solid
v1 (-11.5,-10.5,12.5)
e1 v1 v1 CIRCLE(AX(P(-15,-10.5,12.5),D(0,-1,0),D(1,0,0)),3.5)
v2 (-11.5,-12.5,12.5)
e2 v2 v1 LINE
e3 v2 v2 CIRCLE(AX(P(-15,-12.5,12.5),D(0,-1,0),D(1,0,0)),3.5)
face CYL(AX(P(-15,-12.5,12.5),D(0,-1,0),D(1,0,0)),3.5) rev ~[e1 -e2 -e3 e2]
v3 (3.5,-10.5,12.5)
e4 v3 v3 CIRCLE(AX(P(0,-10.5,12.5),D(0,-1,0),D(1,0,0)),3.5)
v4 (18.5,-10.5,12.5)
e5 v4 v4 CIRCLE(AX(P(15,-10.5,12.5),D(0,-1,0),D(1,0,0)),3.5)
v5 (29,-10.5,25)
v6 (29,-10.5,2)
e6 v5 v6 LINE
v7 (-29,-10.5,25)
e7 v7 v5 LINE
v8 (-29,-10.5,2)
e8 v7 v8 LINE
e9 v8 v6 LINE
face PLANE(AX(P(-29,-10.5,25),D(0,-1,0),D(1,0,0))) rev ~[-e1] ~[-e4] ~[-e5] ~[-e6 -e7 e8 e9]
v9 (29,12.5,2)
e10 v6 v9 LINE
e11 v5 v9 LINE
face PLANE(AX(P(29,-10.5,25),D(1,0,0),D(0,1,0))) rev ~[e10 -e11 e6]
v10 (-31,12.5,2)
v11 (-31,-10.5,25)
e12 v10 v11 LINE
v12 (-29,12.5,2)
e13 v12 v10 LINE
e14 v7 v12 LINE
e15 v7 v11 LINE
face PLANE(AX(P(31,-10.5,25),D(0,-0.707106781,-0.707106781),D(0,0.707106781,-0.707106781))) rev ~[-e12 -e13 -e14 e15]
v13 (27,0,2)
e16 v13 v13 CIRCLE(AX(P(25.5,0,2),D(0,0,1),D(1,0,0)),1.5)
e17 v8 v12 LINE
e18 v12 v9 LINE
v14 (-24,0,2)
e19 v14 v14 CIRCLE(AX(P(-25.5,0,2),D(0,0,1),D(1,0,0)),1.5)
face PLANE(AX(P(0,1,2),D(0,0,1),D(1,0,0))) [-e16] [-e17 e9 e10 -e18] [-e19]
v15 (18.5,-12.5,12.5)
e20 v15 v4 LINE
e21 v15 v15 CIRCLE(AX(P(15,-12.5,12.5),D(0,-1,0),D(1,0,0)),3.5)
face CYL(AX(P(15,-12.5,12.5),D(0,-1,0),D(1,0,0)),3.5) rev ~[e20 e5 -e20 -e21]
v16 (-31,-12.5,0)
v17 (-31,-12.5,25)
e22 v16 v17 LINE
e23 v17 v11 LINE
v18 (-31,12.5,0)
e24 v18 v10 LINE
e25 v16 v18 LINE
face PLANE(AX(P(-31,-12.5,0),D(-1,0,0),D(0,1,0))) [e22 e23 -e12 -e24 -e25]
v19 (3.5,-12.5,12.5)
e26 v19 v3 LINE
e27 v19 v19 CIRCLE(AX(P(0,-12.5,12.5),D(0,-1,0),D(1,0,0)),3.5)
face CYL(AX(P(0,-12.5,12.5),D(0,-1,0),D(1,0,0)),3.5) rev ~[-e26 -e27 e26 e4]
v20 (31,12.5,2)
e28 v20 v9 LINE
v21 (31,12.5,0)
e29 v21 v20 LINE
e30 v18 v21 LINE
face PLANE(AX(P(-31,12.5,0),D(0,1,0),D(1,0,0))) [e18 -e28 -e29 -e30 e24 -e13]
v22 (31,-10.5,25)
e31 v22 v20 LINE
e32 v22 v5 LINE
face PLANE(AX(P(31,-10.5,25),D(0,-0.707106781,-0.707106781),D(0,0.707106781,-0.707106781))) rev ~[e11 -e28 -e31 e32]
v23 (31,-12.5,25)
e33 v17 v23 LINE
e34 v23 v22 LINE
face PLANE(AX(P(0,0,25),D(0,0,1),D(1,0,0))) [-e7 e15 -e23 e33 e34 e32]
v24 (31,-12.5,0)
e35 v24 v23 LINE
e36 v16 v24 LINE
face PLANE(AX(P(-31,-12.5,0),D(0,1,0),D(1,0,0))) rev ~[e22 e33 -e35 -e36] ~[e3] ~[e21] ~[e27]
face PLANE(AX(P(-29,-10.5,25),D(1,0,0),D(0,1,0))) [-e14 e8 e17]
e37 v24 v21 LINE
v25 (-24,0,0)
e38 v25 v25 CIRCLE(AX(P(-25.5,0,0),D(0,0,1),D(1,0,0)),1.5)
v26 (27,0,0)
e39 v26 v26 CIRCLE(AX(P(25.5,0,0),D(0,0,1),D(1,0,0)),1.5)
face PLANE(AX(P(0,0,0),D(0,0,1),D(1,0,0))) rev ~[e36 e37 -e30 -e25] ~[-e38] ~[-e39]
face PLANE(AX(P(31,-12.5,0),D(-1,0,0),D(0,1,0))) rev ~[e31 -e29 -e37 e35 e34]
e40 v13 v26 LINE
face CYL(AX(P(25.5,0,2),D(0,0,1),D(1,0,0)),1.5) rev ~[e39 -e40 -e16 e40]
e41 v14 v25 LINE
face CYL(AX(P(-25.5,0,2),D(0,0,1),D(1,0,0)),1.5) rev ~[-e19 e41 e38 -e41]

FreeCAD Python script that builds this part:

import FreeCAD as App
import Part
import Sketcher
from FreeCAD import Vector
Q = App.Units.Quantity

doc = App.newDocument("Part")
body = doc.addObject("PartDesign::Body", "Body")

sketch1 = body.newObject("Sketcher::SketchObject", "Sketch")
sketch1.AttachmentSupport = (doc.getObject("XY_Plane"), [""])
sketch1.MapMode = "FlatFace"
sketch1.addGeometry([
    Part.LineSegment(Vector(-31, 12, 0), Vector(-31, -12, 0)),
    Part.LineSegment(Vector(-31, -12, 0), Vector(31, -12, 0)),
    Part.LineSegment(Vector(31, -12, 0), Vector(31, 12, 0)),
    Part.LineSegment(Vector(31, 12, 0), Vector(-31, 12, 0)),
], False)
sketch1.addConstraint([
    Sketcher.Constraint("Coincident", 0, 2, 1, 1),
    Sketcher.Constraint("Coincident", 1, 2, 2, 1),
    Sketcher.Constraint("Coincident", 2, 2, 3, 1),
    Sketcher.Constraint("Coincident", 3, 2, 0, 1),
    Sketcher.Constraint("Vertical", 0),
    Sketcher.Constraint("Horizontal", 1),
    Sketcher.Constraint("Vertical", 2),
    Sketcher.Constraint("Horizontal", 3),
    Sketcher.Constraint("Symmetric", 0, 2, 2, 2, -1, 1),
    Sketcher.Constraint("DistanceX", 1, 1, 1, 2, Q("62 mm")),
    Sketcher.Constraint("DistanceY", 0, 2, 0, 1, Q("25 mm")),
])
pad1 = body.newObject("PartDesign::Pad", "Pad")
pad1.Profile = sketch1
pad1.Length = 25

sketch2 = body.newObject("Sketcher::SketchObject", "Sketch001")
sketch2.AttachmentSupport = (doc.getObject("XZ_Plane"), [""])
sketch2.MapMode = "FlatFace"
sketch2.AttachmentOffset = App.Placement(Vector(0, 0, 12.5), App.Rotation())
sketch2.addGeometry([
    Part.Circle(Vector(0, 12.5, 0), Vector(0, 0, 1), 3.5),
    Part.Circle(Vector(-15, 12.5, 0), Vector(0, 0, 1), 3.5),
    Part.Circle(Vector(15, 12.5, 0), Vector(0, 0, 1), 3.5),
], False)
sketch2.addConstraint([
    Sketcher.Constraint("Equal", 0, 1),
    Sketcher.Constraint("Equal", 1, 2),
    Sketcher.Constraint("Symmetric", 1, 3, 2, 3, -2),
    Sketcher.Constraint("PointOnObject", 0, 3, -2),
    Sketcher.Constraint("Horizontal", 0, 3, 1, 3),
    Sketcher.Constraint("Diameter", 0, Q("7 mm")),
    Sketcher.Constraint("DistanceX", 1, 3, -1, 1, Q("15 mm")),
    Sketcher.Constraint("DistanceY", -1, 1, 0, 3, Q("12.5 mm")),
])
pocket1 = body.newObject("PartDesign::Pocket", "Pocket")
pocket1.Profile = sketch2
pocket1.Length = 25

sketch3 = body.newObject("Sketcher::SketchObject", "Sketch002")
sketch3.AttachmentSupport = (doc.getObject("XY_Plane"), [""])
sketch3.MapMode = "FlatFace"
sketch3.AttachmentOffset = App.Placement(Vector(0, 0, 25), App.Rotation())
sketch3.addGeometry([
    Part.LineSegment(Vector(-29, 12, 0), Vector(-29, -10, 0)),
    Part.LineSegment(Vector(-29, -10, 0), Vector(29, -10, 0)),
    Part.LineSegment(Vector(29, -10, 0), Vector(29, 12, 0)),
    Part.LineSegment(Vector(29, 12, 0), Vector(-29, 12, 0)),
], False)
sketch3.addConstraint([
    Sketcher.Constraint("Coincident", 0, 2, 1, 1),
    Sketcher.Constraint("Coincident", 1, 2, 2, 1),
    Sketcher.Constraint("Coincident", 2, 2, 3, 1),
    Sketcher.Constraint("Coincident", 3, 2, 0, 1),
    Sketcher.Constraint("Vertical", 0),
    Sketcher.Constraint("Horizontal", 1),
    Sketcher.Constraint("Vertical", 2),
    Sketcher.Constraint("Horizontal", 3),
    Sketcher.Constraint("DistanceX", 1, 1, 1, 2, Q("58 mm")),
    Sketcher.Constraint("DistanceY", 0, 2, 0, 1, Q("23 mm")),
    Sketcher.Constraint("DistanceX", 0, 2, -1, 1, Q("29 mm")),
    Sketcher.Constraint("DistanceY", 0, 2, -1, 1, Q("10.5 mm")),
])
pocket2 = body.newObject("PartDesign::Pocket", "Pocket001")
pocket2.Profile = sketch3
pocket2.Length = 23

sketch4 = body.newObject("Sketcher::SketchObject", "Sketch003")
sketch4.AttachmentSupport = (doc.getObject("YZ_Plane"), [""])
sketch4.MapMode = "FlatFace"
sketch4.AttachmentOffset = App.Placement(Vector(0, 0, 31), App.Rotation())
sketch4.addGeometry([
    Part.LineSegment(Vector(12, 25, 0), Vector(-10, 25, 0)),
    Part.LineSegment(Vector(-10, 25, 0), Vector(12, 2, 0)),
    Part.LineSegment(Vector(12, 2, 0), Vector(12, 25, 0)),
], False)
sketch4.addConstraint([
    Sketcher.Constraint("Coincident", 0, 2, 1, 1),
    Sketcher.Constraint("Coincident", 1, 2, 2, 1),
    Sketcher.Constraint("Coincident", 2, 2, 0, 1),
    Sketcher.Constraint("Horizontal", 0),
    Sketcher.Constraint("Vertical", 2),
    Sketcher.Constraint("Equal", 0, 2),
    Sketcher.Constraint("DistanceX", 0, 2, 0, 1, Q("23 mm")),
    Sketcher.Constraint("DistanceY", -1, 1, 0, 2, Q("25 mm")),
    Sketcher.Constraint("DistanceX", 0, 2, -1, 1, Q("10.5 mm")),
])
pocket3 = body.newObject("PartDesign::Pocket", "Pocket002")
pocket3.Profile = sketch4
pocket3.Type = "ThroughAll"

sketch5 = body.newObject("Sketcher::SketchObject", "Sketch004")
sketch5.AttachmentSupport = (doc.getObject("XY_Plane"), [""])
sketch5.MapMode = "FlatFace"
sketch5.AttachmentOffset = App.Placement(Vector(0, 0, 2), App.Rotation())
sketch5.addGeometry([
    Part.Circle(Vector(-25.5, 0, 0), Vector(0, 0, 1), 1.5),
    Part.Circle(Vector(25.5, 0, 0), Vector(0, 0, 1), 1.5),
], False)
sketch5.addConstraint([
    Sketcher.Constraint("Equal", 0, 1),
    Sketcher.Constraint("Symmetric", 0, 3, 1, 3, -1, 1),
    Sketcher.Constraint("PointOnObject", 0, 3, -1),
    Sketcher.Constraint("Diameter", 0, Q("3 mm")),
    Sketcher.Constraint("DistanceX", 0, 3, 1, 3, Q("51 mm")),
])
pocket4 = body.newObject("PartDesign::Pocket", "Pocket003")
pocket4.Profile = sketch5
pocket4.Type = "ThroughAll"

doc.recompute()
